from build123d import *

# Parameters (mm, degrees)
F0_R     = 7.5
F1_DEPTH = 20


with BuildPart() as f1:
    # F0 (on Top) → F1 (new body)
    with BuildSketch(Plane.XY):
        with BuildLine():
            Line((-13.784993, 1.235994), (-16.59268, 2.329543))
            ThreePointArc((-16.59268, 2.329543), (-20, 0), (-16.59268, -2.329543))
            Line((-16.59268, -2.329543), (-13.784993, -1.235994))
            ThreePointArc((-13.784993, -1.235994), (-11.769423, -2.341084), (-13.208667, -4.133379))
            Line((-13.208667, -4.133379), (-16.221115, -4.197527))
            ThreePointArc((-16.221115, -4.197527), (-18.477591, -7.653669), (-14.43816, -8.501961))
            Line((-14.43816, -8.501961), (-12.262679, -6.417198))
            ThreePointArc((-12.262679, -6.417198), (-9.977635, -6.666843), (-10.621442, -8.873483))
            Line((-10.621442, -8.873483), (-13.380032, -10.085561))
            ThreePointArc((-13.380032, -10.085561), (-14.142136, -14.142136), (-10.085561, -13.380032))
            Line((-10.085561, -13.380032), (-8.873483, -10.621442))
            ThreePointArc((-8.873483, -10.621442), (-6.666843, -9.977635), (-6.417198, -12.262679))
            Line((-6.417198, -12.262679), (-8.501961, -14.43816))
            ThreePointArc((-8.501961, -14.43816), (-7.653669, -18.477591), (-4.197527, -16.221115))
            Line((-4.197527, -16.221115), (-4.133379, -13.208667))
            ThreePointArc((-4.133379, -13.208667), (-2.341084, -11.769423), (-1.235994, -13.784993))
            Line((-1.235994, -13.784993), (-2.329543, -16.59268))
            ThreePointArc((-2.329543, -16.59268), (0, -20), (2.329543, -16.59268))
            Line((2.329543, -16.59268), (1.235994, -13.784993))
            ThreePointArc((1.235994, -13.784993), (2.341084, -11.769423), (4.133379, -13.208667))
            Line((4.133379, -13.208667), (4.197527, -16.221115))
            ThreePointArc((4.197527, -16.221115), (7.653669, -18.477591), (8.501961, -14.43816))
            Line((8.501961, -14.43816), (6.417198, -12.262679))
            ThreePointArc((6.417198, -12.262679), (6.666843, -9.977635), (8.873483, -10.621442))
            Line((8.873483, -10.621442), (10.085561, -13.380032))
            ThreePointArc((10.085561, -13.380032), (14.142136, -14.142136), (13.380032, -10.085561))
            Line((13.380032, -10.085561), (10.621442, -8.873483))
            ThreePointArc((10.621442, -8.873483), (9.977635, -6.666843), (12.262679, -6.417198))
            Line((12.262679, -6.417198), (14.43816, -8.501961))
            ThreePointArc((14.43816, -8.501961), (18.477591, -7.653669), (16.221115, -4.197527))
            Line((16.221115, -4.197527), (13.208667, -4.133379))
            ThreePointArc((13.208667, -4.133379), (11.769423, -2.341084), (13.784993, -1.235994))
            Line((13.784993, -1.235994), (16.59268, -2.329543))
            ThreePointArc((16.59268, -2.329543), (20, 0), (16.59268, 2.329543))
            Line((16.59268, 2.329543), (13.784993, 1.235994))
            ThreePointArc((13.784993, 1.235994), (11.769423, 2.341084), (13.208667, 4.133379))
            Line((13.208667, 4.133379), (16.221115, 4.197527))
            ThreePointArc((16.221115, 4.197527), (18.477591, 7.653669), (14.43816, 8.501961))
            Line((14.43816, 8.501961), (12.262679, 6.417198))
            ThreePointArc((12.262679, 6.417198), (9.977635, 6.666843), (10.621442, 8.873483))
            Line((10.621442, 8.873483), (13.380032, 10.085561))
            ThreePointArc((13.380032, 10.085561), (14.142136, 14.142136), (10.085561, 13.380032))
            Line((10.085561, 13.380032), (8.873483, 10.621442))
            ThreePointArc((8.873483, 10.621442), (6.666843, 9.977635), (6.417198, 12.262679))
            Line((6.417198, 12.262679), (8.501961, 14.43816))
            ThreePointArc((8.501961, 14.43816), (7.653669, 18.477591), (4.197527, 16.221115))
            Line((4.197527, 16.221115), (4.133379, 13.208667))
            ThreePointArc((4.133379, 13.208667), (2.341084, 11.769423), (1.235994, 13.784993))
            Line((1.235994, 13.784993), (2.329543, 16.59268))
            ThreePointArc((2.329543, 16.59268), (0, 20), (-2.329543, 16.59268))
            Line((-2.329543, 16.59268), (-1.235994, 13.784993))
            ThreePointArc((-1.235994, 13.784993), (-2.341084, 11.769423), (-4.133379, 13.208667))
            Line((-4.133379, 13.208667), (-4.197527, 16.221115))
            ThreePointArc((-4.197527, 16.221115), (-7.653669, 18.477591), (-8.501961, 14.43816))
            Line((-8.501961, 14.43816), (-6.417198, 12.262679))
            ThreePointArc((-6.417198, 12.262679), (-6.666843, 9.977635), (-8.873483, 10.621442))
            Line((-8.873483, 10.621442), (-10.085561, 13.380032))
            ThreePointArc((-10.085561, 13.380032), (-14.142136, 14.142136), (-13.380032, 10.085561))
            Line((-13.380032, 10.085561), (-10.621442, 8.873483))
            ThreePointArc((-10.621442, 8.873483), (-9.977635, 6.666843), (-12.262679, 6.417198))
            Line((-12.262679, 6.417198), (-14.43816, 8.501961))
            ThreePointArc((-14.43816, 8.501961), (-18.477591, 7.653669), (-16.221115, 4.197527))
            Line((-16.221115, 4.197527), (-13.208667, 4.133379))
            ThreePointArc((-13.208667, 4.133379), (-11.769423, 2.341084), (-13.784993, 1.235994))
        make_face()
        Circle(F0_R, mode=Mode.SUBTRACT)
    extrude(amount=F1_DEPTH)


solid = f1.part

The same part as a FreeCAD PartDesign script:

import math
import FreeCAD as App
import Part
import Sketcher

V = App.Vector
Q = App.Units.Quantity

doc = App.newDocument("Part")
params = doc.addObject("Spreadsheet::Sheet", "Params")
for row, (alias, value) in enumerate([
    ("sketch1_diameter", "15 mm"),
    ("sketch1_radius", "2.5 mm"),
    ("sketch1_radius2", "1.5 mm"),
    ("pad1_length", "20 mm"),
], start=1):
    params.set(f"A{row}", alias)
    params.set(f"B{row}", "=" + value)
    params.setAlias(f"B{row}", alias)

body = doc.addObject("PartDesign::Body", "Body")

sketch1 = body.newObject("Sketcher::SketchObject", "Sketch")
sketch1.AttachmentSupport = (doc.getObject("XY_Plane"), [""])
sketch1.MapMode = "FlatFace"
sketch1.addGeometry([
    Part.LineSegment(V(-13.8, 1.2, 0), V(-16.6, 2.3, 0)),
    Part.ArcOfCircle(Part.Circle(V(-17.5, 0, 0), V(0, 0, 1), 2.5), math.radians(69), math.radians(291)),
    Part.LineSegment(V(-16.6, -2.3, 0), V(-13.8, -1.2, 0)),
    Part.ArcOfCircle(Part.Circle(V(-13.2, -2.6, 0), V(0, 0, 1), 1.5), math.radians(-89), math.radians(111)),
    Part.LineSegment(V(-13.2, -4.1, 0), V(-16.2, -4.2, 0)),
    Part.ArcOfCircle(Part.Circle(V(-16.2, -6.7, 0), V(0, 0, 1), 2.5), math.radians(91), math.radians(314)),
    Part.LineSegment(V(-14.4, -8.5, 0), V(-12.3, -6.4, 0)),
    Part.ArcOfCircle(Part.Circle(V(-11.2, -7.5, 0), V(0, 0, 1), 1.5), math.radians(-66), math.radians(134)),
    Part.LineSegment(V(-10.6, -8.9, 0), V(-13.4, -10.1, 0)),
    Part.ArcOfCircle(Part.Circle(V(-12.4, -12.4, 0), V(0, 0, 1), 2.5), math.radians(114), math.radians(336)),
    Part.LineSegment(V(-10.1, -13.4, 0), V(-8.9, -10.6, 0)),
    Part.ArcOfCircle(Part.Circle(V(-7.5, -11.2, 0), V(0, 0, 1), 1.5), math.radians(-44), math.radians(156)),
    Part.LineSegment(V(-6.4, -12.3, 0), V(-8.5, -14.4, 0)),
    Part.ArcOfCircle(Part.Circle(V(-6.7, -16.2, 0), V(0, 0, 1), 2.5), math.radians(136), math.radians(359)),
    Part.LineSegment(V(-4.2, -16.2, 0), V(-4.1, -13.2, 0)),
    Part.ArcOfCircle(Part.Circle(V(-2.6, -13.2, 0), V(0, 0, 1), 1.5), math.radians(-21), math.radians(179)),
    Part.LineSegment(V(-1.2, -13.8, 0), V(-2.3, -16.6, 0)),
    Part.ArcOfCircle(Part.Circle(V(0, -17.5, 0), V(0, 0, 1), 2.5), math.radians(159), math.radians(381)),
    Part.LineSegment(V(2.3, -16.6, 0), V(1.2, -13.8, 0)),
    Part.ArcOfCircle(Part.Circle(V(2.6, -13.2, 0), V(0, 0, 1), 1.5), math.radians(1), math.radians(201)),
    Part.LineSegment(V(4.1, -13.2, 0), V(4.2, -16.2, 0)),
    Part.ArcOfCircle(Part.Circle(V(6.7, -16.2, 0), V(0, 0, 1), 2.5), math.radians(-179), math.radians(44)),
    Part.LineSegment(V(8.5, -14.4, 0), V(6.4, -12.3, 0)),
    Part.ArcOfCircle(Part.Circle(V(7.5, -11.2, 0), V(0, 0, 1), 1.5), math.radians(24), math.radians(224)),
    Part.LineSegment(V(8.9, -10.6, 0), V(10.1, -13.4, 0)),
    Part.ArcOfCircle(Part.Circle(V(12.4, -12.4, 0), V(0, 0, 1), 2.5), math.radians(-156), math.radians(66)),
    Part.LineSegment(V(13.4, -10.1, 0), V(10.6, -8.9, 0)),
    Part.ArcOfCircle(Part.Circle(V(11.2, -7.5, 0), V(0, 0, 1), 1.5), math.radians(46), math.radians(246)),
    Part.LineSegment(V(12.3, -6.4, 0), V(14.4, -8.5, 0)),
    Part.ArcOfCircle(Part.Circle(V(16.2, -6.7, 0), V(0, 0, 1), 2.5), math.radians(-134), math.radians(89)),
    Part.LineSegment(V(16.2, -4.2, 0), V(13.2, -4.1, 0)),
    Part.ArcOfCircle(Part.Circle(V(13.2, -2.6, 0), V(0, 0, 1), 1.5), math.radians(69), math.radians(269)),
    Part.LineSegment(V(13.8, -1.2, 0), V(16.6, -2.3, 0)),
    Part.ArcOfCircle(Part.Circle(V(17.5, 0, 0), V(0, 0, 1), 2.5), math.radians(-111), math.radians(111)),
    Part.LineSegment(V(16.6, 2.3, 0), V(13.8, 1.2, 0)),
    Part.ArcOfCircle(Part.Circle(V(13.2, 2.6, 0), V(0, 0, 1), 1.5), math.radians(91), math.radians(291)),
    Part.LineSegment(V(13.2, 4.1, 0), V(16.2, 4.2, 0)),
    Part.ArcOfCircle(Part.Circle(V(16.2, 6.7, 0), V(0, 0, 1), 2.5), math.radians(-89), math.radians(134)),
    Part.LineSegment(V(14.4, 8.5, 0), V(12.3, 6.4, 0)),
    Part.ArcOfCircle(Part.Circle(V(11.2, 7.5, 0), V(0, 0, 1), 1.5), math.radians(114), math.radians(314)),
    Part.LineSegment(V(10.6, 8.9, 0), V(13.4, 10.1, 0)),
    Part.ArcOfCircle(Part.Circle(V(12.4, 12.4, 0), V(0, 0, 1), 2.5), math.radians(-66), math.radians(156)),
    Part.LineSegment(V(10.1, 13.4, 0), V(8.9, 10.6, 0)),
    Part.ArcOfCircle(Part.Circle(V(7.5, 11.2, 0), V(0, 0, 1), 1.5), math.radians(136), math.radians(336)),
    Part.LineSegment(V(6.4, 12.3, 0), V(8.5, 14.4, 0)),
    Part.ArcOfCircle(Part.Circle(V(6.7, 16.2, 0), V(0, 0, 1), 2.5), math.radians(-44), math.radians(179)),
    Part.LineSegment(V(4.2, 16.2, 0), V(4.1, 13.2, 0)),
    Part.ArcOfCircle(Part.Circle(V(2.6, 13.2, 0), V(0, 0, 1), 1.5), math.radians(159), math.radians(359)),
    Part.LineSegment(V(1.2, 13.8, 0), V(2.3, 16.6, 0)),
    Part.ArcOfCircle(Part.Circle(V(0, 17.5, 0), V(0, 0, 1), 2.5), math.radians(-21), math.radians(201)),
    Part.LineSegment(V(-2.3, 16.6, 0), V(-1.2, 13.8, 0)),
    Part.ArcOfCircle(Part.Circle(V(-2.6, 13.2, 0), V(0, 0, 1), 1.5), math.radians(-179), math.radians(21)),
    Part.LineSegment(V(-4.1, 13.2, 0), V(-4.2, 16.2, 0)),
    Part.ArcOfCircle(Part.Circle(V(-6.7, 16.2, 0), V(0, 0, 1), 2.5), math.radians(1), math.radians(224)),
    Part.LineSegment(V(-8.5, 14.4, 0), V(-6.4, 12.3, 0)),
    Part.ArcOfCircle(Part.Circle(V(-7.5, 11.2, 0), V(0, 0, 1), 1.5), math.radians(-156), math.radians(44)),
    Part.LineSegment(V(-8.9, 10.6, 0), V(-10.1, 13.4, 0)),
    Part.ArcOfCircle(Part.Circle(V(-12.4, 12.4, 0), V(0, 0, 1), 2.5), math.radians(24), math.radians(246)),
    Part.LineSegment(V(-13.4, 10.1, 0), V(-10.6, 8.9, 0)),
    Part.ArcOfCircle(Part.Circle(V(-11.2, 7.5, 0), V(0, 0, 1), 1.5), math.radians(-134), math.radians(66)),
    Part.LineSegment(V(-12.3, 6.4, 0), V(-14.4, 8.5, 0)),
    Part.ArcOfCircle(Part.Circle(V(-16.2, 6.7, 0), V(0, 0, 1), 2.5), math.radians(46), math.radians(269)),
    Part.LineSegment(V(-16.2, 4.2, 0), V(-13.2, 4.1, 0)),
    Part.ArcOfCircle(Part.Circle(V(-13.2, 2.6, 0), V(0, 0, 1), 1.5), math.radians(-111), math.radians(89)),
    Part.Circle(V(0, 0, 0), V(0, 0, 1), 7.5),
], False)
sketch1.addConstraint([
    Sketcher.Constraint("Tangent", 0, 2, 1, 1),
    Sketcher.Constraint("Tangent", 1, 2, 2, 1),
    Sketcher.Constraint("Tangent", 2, 2, 3, 2),
    Sketcher.Constraint("Tangent", 3, 1, 4, 1),
    Sketcher.Constraint("Tangent", 4, 2, 5, 1),
    Sketcher.Constraint("Tangent", 5, 2, 6, 1),
    Sketcher.Constraint("Tangent", 6, 2, 7, 2),
    Sketcher.Constraint("Tangent", 7, 1, 8, 1),
    Sketcher.Constraint("Tangent", 8, 2, 9, 1),
    Sketcher.Constraint("Tangent", 9, 2, 10, 1),
    Sketcher.Constraint("Tangent", 10, 2, 11, 2),
    Sketcher.Constraint("Tangent", 11, 1, 12, 1),
    Sketcher.Constraint("Tangent", 12, 2, 13, 1),
    Sketcher.Constraint("Tangent", 13, 2, 14, 1),
    Sketcher.Constraint("Tangent", 14, 2, 15, 2),
    Sketcher.Constraint("Tangent", 15, 1, 16, 1),
    Sketcher.Constraint("Tangent", 16, 2, 17, 1),
    Sketcher.Constraint("Tangent", 17, 2, 18, 1),
    Sketcher.Constraint("Tangent", 18, 2, 19, 2),
    Sketcher.Constraint("Tangent", 19, 1, 20, 1),
    Sketcher.Constraint("Tangent", 20, 2, 21, 1),
    Sketcher.Constraint("Tangent", 21, 2, 22, 1),
    Sketcher.Constraint("Tangent", 22, 2, 23, 2),
    Sketcher.Constraint("Tangent", 23, 1, 24, 1),
    Sketcher.Constraint("Tangent", 24, 2, 25, 1),
    Sketcher.Constraint("Tangent", 25, 2, 26, 1),
    Sketcher.Constraint("Tangent", 26, 2, 27, 2),
    Sketcher.Constraint("Tangent", 27, 1, 28, 1),
    Sketcher.Constraint("Tangent", 28, 2, 29, 1),
    Sketcher.Constraint("Tangent", 29, 2, 30, 1),
    Sketcher.Constraint("Tangent", 30, 2, 31, 2),
    Sketcher.Constraint("Tangent", 31, 1, 32, 1),
    Sketcher.Constraint("Tangent", 32, 2, 33, 1),
    Sketcher.Constraint("Tangent", 33, 2, 34, 1),
    Sketcher.Constraint("Tangent", 34, 2, 35, 2),
    Sketcher.Constraint("Tangent", 35, 1, 36, 1),
    Sketcher.Constraint("Tangent", 36, 2, 37, 1),
    Sketcher.Constraint("Tangent", 37, 2, 38, 1),
    Sketcher.Constraint("Tangent", 38, 2, 39, 2),
    Sketcher.Constraint("Tangent", 39, 1, 40, 1),
    Sketcher.Constraint("Tangent", 40, 2, 41, 1),
    Sketcher.Constraint("Tangent", 41, 2, 42, 1),
    Sketcher.Constraint("Tangent", 42, 2, 43, 2),
    Sketcher.Constraint("Tangent", 43, 1, 44, 1),
    Sketcher.Constraint("Tangent", 44, 2, 45, 1),
    Sketcher.Constraint("Tangent", 45, 2, 46, 1),
    Sketcher.Constraint("Tangent", 46, 2, 47, 2),
    Sketcher.Constraint("Tangent", 47, 1, 48, 1),
    Sketcher.Constraint("Tangent", 48, 2, 49, 1),
    Sketcher.Constraint("Tangent", 49, 2, 50, 1),
    Sketcher.Constraint("Tangent", 50, 2, 51, 2),
    Sketcher.Constraint("Tangent", 51, 1, 52, 1),
    Sketcher.Constraint("Tangent", 52, 2, 53, 1),
    Sketcher.Constraint("Tangent", 53, 2, 54, 1),
    Sketcher.Constraint("Tangent", 54, 2, 55, 2),
    Sketcher.Constraint("Tangent", 55, 1, 56, 1),
    Sketcher.Constraint("Tangent", 56, 2, 57, 1),
    Sketcher.Constraint("Tangent", 57, 2, 58, 1),
    Sketcher.Constraint("Tangent", 58, 2, 59, 2),
    Sketcher.Constraint("Tangent", 59, 1, 60, 1),
    Sketcher.Constraint("Tangent", 60, 2, 61, 1),
    Sketcher.Constraint("Tangent", 61, 2, 62, 1),
    Sketcher.Constraint("Tangent", 62, 2, 63, 2),
    Sketcher.Constraint("Tangent", 63, 1, 0, 1),
    Sketcher.Constraint("Coincident", 64, 3, -1, 1),
    Sketcher.Constraint("Equal", 1, 5),
    Sketcher.Constraint("Equal", 3, 7),
    Sketcher.Constraint("Equal", 5, 9),
    Sketcher.Constraint("Equal", 7, 11),
    Sketcher.Constraint("Equal", 9, 13),
    Sketcher.Constraint("Equal", 11, 15),
    Sketcher.Constraint("Equal", 13, 17),
    Sketcher.Constraint("Equal", 15, 19),
    Sketcher.Constraint("Equal", 17, 21),
    Sketcher.Constraint("Equal", 19, 23),
    Sketcher.Constraint("Equal", 21, 25),
    Sketcher.Constraint("Equal", 23, 27),
    Sketcher.Constraint("Equal", 25, 29),
    Sketcher.Constraint("Equal", 27, 31),
    Sketcher.Constraint("Equal", 29, 33),
    Sketcher.Constraint("Equal", 31, 35),
    Sketcher.Constraint("Equal", 33, 37),
    Sketcher.Constraint("Equal", 35, 39),
    Sketcher.Constraint("Equal", 37, 41),
    Sketcher.Constraint("Equal", 39, 43),
    Sketcher.Constraint("Equal", 41, 45),
    Sketcher.Constraint("Equal", 43, 47),
    Sketcher.Constraint("Equal", 45, 49),
    Sketcher.Constraint("Equal", 47, 51),
    Sketcher.Constraint("Equal", 49, 53),
    Sketcher.Constraint("Equal", 51, 55),
    Sketcher.Constraint("Equal", 53, 57),
    Sketcher.Constraint("Equal", 55, 59),
    Sketcher.Constraint("Equal", 57, 61),
    Sketcher.Constraint("Equal", 59, 63),
    Sketcher.Constraint("Symmetric", 1, 3, 33, 3, -1, 1),
    Sketcher.Constraint("Symmetric", 3, 3, 35, 3, -1, 1),
    Sketcher.Constraint("Symmetric", 5, 3, 37, 3, -1, 1),
    Sketcher.Constraint("Symmetric", 7, 3, 39, 3, -1, 1),
    Sketcher.Constraint("Symmetric", 9, 3, 41, 3, -1, 1),
    Sketcher.Constraint("Symmetric", 11, 3, 43, 3, -1, 1),
    Sketcher.Constraint("Symmetric", 13, 3, 45, 3, -1, 1),
    Sketcher.Constraint("Symmetric", 15, 3, 47, 3, -1, 1),
    Sketcher.Constraint("Symmetric", 17, 3, 49, 3, -1, 1),
    Sketcher.Constraint("Symmetric", 19, 3, 51, 3, -1, 1),
    Sketcher.Constraint("Symmetric", 21, 3, 53, 3, -1, 1),
    Sketcher.Constraint("Symmetric", 23, 3, 55, 3, -1, 1),
    Sketcher.Constraint("Symmetric", 25, 3, 57, 3, -1, 1),
    Sketcher.Constraint("Symmetric", 27, 3, 59, 3, -1, 1),
    Sketcher.Constraint("Symmetric", 29, 3, 61, 3, -1, 1),
    Sketcher.Constraint("Symmetric", 31, 3, 63, 3, -1, 1),
    Sketcher.Constraint("Symmetric", 15, 3, 19, 3, -2),
    Sketcher.Constraint("Symmetric", 13, 3, 21, 3, -2),
    Sketcher.Constraint("Symmetric", 11, 3, 23, 3, -2),
    Sketcher.Constraint("Symmetric", 9, 3, 25, 3, -2),
    Sketcher.Constraint("Symmetric", 7, 3, 27, 3, -2),
    Sketcher.Constraint("Symmetric", 5, 3, 29, 3, -2),
    Sketcher.Constraint("Symmetric", 3, 3, 31, 3, -2),
    Sketcher.Constraint("PointOnObject", 1, 3, -1),
    Sketcher.Constraint("PointOnObject", 17, 3, -2),
    Sketcher.Constraint("Perpendicular", 0, 16),
    Sketcher.Constraint("Perpendicular", 4, 20),
    Sketcher.Constraint("Perpendicular", 6, 22),
    Sketcher.Constraint("Perpendicular", 8, 24),
    Sketcher.Constraint("Equal", 2, 4),
    Sketcher.Constraint("Equal", 4, 6),
    Sketcher.Constraint("Equal", 6, 8),
    Sketcher.Constraint("Equal", 8, 10),
    Sketcher.Constraint("Equal", 10, 12),
    Sketcher.Constraint("Equal", 12, 14),
    Sketcher.Constraint("Equal", 14, 16),
    Sketcher.Constraint("Diameter", 64, Q("15 mm")),
    Sketcher.Constraint("Radius", 1, Q("2.5 mm")),
    Sketcher.Constraint("Radius", 3, Q("1.5 mm")),
    Sketcher.Constraint("DistanceX", 1, 3, -1, 1, Q("17.5 mm")),
    Sketcher.Constraint("DistanceX", 3, 3, -1, 1, Q("13.240601 mm")),
    Sketcher.Constraint("DistanceY", 7, 3, -1, 1, Q("7.500198 mm")),
    Sketcher.Constraint("Distance", 0, Q("3.013131 mm")),
    Sketcher.Constraint("DistanceY", 5, 3, -1, 1, Q("6.69696 mm")),
])
sketch1.setExpression("Constraints[131]", "Params.sketch1_diameter")
sketch1.setExpression("Constraints[132]", "Params.sketch1_radius")
sketch1.setExpression("Constraints[133]", "Params.sketch1_radius2")
pad1 = body.newObject("PartDesign::Pad", "Pad")
pad1.Profile = sketch1
pad1.setExpression("Length", "Params.pad1_length")

doc.recompute()
